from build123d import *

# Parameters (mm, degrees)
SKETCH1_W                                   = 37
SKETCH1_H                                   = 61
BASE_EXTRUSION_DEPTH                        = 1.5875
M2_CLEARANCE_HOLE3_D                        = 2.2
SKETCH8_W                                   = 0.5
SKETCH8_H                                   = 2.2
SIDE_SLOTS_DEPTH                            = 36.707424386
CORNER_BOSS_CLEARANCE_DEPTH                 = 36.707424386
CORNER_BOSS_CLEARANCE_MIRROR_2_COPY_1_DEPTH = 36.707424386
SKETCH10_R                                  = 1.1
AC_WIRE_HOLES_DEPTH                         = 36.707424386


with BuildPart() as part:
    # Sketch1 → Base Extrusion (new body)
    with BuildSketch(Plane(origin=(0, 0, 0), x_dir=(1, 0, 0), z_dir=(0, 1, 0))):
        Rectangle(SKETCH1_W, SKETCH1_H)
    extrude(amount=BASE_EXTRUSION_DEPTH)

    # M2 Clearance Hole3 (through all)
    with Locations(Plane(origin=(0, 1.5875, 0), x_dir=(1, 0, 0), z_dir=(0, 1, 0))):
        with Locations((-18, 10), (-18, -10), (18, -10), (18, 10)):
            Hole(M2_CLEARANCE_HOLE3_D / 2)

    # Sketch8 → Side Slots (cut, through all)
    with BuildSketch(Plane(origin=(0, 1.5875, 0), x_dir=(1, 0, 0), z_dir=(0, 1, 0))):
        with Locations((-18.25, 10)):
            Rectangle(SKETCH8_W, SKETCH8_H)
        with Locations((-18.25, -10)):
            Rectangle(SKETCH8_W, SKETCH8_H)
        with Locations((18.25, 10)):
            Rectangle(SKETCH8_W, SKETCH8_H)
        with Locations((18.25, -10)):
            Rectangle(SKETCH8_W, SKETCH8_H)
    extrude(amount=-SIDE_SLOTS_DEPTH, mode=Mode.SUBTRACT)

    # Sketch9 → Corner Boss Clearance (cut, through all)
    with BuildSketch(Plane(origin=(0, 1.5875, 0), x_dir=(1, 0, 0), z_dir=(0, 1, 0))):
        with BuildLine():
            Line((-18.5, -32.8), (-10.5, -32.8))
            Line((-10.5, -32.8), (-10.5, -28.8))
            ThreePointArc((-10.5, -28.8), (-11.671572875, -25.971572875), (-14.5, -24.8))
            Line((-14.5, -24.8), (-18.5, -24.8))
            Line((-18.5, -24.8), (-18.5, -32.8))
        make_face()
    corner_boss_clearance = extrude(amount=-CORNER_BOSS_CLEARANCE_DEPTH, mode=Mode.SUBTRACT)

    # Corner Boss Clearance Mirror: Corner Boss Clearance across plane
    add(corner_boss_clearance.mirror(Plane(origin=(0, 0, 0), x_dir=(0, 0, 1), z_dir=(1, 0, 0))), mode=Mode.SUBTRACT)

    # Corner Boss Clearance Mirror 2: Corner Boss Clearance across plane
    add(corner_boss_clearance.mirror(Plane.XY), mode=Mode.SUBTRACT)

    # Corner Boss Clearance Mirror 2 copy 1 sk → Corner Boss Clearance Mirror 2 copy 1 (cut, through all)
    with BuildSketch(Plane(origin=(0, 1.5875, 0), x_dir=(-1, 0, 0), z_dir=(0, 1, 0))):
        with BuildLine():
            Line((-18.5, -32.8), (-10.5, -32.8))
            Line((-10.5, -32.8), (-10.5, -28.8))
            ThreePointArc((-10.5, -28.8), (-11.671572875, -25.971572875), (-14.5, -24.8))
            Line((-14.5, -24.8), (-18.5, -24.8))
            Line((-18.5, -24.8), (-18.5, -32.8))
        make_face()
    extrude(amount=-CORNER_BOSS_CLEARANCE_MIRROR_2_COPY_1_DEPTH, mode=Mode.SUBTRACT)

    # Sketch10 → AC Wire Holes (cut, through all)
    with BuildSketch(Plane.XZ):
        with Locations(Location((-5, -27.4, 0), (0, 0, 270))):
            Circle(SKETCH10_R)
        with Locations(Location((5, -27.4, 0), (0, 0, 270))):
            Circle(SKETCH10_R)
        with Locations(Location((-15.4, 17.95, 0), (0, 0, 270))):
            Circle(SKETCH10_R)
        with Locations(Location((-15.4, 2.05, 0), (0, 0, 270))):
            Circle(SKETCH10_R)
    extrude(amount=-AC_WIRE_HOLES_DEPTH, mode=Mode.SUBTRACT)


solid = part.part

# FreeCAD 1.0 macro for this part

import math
import FreeCAD as App
import Part
import Sketcher
Q = App.Units.Quantity

doc = App.newDocument("Part")
body = doc.addObject("PartDesign::Body", "Body")

# Sketch on XZ plane
sketch1 = body.newObject("Sketcher::SketchObject", "Sketch")
sketch1.AttachmentSupport = (doc.getObject("XZ_Plane"), [""])
sketch1.MapMode = "FlatFace"
sketch1.addGeometry(Part.LineSegment(App.Vector(-18, -30, 0), App.Vector(-18, 30, 0)), False)
sketch1.addGeometry(Part.LineSegment(App.Vector(-18, 30, 0), App.Vector(18, 30, 0)), False)
sketch1.addGeometry(Part.LineSegment(App.Vector(18, 30, 0), App.Vector(18, -30, 0)), False)
sketch1.addGeometry(Part.LineSegment(App.Vector(18, -30, 0), App.Vector(-18, -30, 0)), False)
sketch1.addConstraint(Sketcher.Constraint("Coincident", 0, 2, 1, 1))
sketch1.addConstraint(Sketcher.Constraint("Coincident", 1, 2, 2, 1))
sketch1.addConstraint(Sketcher.Constraint("Coincident", 2, 2, 3, 1))
sketch1.addConstraint(Sketcher.Constraint("Coincident", 3, 2, 0, 1))
sketch1.addConstraint(Sketcher.Constraint("Vertical", 0))
sketch1.addConstraint(Sketcher.Constraint("Horizontal", 1))
sketch1.addConstraint(Sketcher.Constraint("Vertical", 2))
sketch1.addConstraint(Sketcher.Constraint("Horizontal", 3))
sketch1.addConstraint(Sketcher.Constraint("Symmetric", 0, 2, 2, 2, -1, 1))
sketch1.addConstraint(Sketcher.Constraint("DistanceX", 1, 1, 1, 2, Q("37 mm")))
sketch1.addConstraint(Sketcher.Constraint("DistanceY", 0, 1, 0, 2, Q("61 mm")))
pad1 = body.newObject("PartDesign::Pad", "Pad")
pad1.Profile = sketch1
pad1.Length = 1.5875
pad1.Reversed = True

# Sketch on XZ plane
sketch2 = body.newObject("Sketcher::SketchObject", "Sketch001")
sketch2.AttachmentSupport = (doc.getObject("XZ_Plane"), [""])
sketch2.MapMode = "FlatFace"
sketch2.AttachmentOffset = App.Placement(App.Vector(0, 0, -1.5875), App.Rotation())
sketch2.addGeometry(Part.Circle(App.Vector(-18, -10, 0), App.Vector(0, 0, 1), 1.1), False)
sketch2.addGeometry(Part.Circle(App.Vector(-18, 10, 0), App.Vector(0, 0, 1), 1.1), False)
sketch2.addGeometry(Part.Circle(App.Vector(18, 10, 0), App.Vector(0, 0, 1), 1.1), False)
sketch2.addGeometry(Part.Circle(App.Vector(18, -10, 0), App.Vector(0, 0, 1), 1.1), False)
sketch2.addConstraint(Sketcher.Constraint("Equal", 0, 1))
sketch2.addConstraint(Sketcher.Constraint("Equal", 1, 2))
sketch2.addConstraint(Sketcher.Constraint("Equal", 2, 3))
sketch2.addConstraint(Sketcher.Constraint("Symmetric", 0, 3, 2, 3, -1, 1))
sketch2.addConstraint(Sketcher.Constraint("Symmetric", 1, 3, 3, 3, -1, 1))
sketch2.addConstraint(Sketcher.Constraint("Symmetric", 1, 3, 2, 3, -2))
sketch2.addConstraint(Sketcher.Constraint("Diameter", 0, Q("2.2 mm")))
sketch2.addConstraint(Sketcher.Constraint("DistanceX", 0, 3, -1, 1, Q("18 mm")))
sketch2.addConstraint(Sketcher.Constraint("DistanceY", 0, 3, -1, 1, Q("10 mm")))
doc.recompute()
hole = body.newObject("PartDesign::Hole", "Hole")
hole.Profile = sketch2
hole.ThreadType = "None"
hole.Diameter = 2.2
hole.DepthType = "ThroughAll"
hole.Reversed = True

# Sketch on XZ plane
sketch3 = body.newObject("Sketcher::SketchObject", "Sketch002")
sketch3.AttachmentSupport = (doc.getObject("XZ_Plane"), [""])
sketch3.MapMode = "FlatFace"
sketch3.AttachmentOffset = App.Placement(App.Vector(0, 0, -1.5875), App.Rotation())
sketch3.addGeometry(Part.LineSegment(App.Vector(-18.5, -11.1, 0), App.Vector(-18.5, -8.9, 0)), False)
sketch3.addGeometry(Part.LineSegment(App.Vector(-18.5, -8.9, 0), App.Vector(-18, -8.9, 0)), False)
sketch3.addGeometry(Part.LineSegment(App.Vector(-18, -8.9, 0), App.Vector(-18, -11.1, 0)), False)
sketch3.addGeometry(Part.LineSegment(App.Vector(-18, -11.1, 0), App.Vector(-18.5, -11.1, 0)), False)
sketch3.addGeometry(Part.LineSegment(App.Vector(-18.5, 8.9, 0), App.Vector(-18.5, 11.1, 0)), False)
sketch3.addGeometry(Part.LineSegment(App.Vector(-18.5, 11.1, 0), App.Vector(-18, 11.1, 0)), False)
sketch3.addGeometry(Part.LineSegment(App.Vector(-18, 11.1, 0), App.Vector(-18, 8.9, 0)), False)
sketch3.addGeometry(Part.LineSegment(App.Vector(-18, 8.9, 0), App.Vector(-18.5, 8.9, 0)), False)
sketch3.addGeometry(Part.LineSegment(App.Vector(18, -11.1, 0), App.Vector(18, -8.9, 0)), False)
sketch3.addGeometry(Part.LineSegment(App.Vector(18, -8.9, 0), App.Vector(18.5, -8.9, 0)), False)
sketch3.addGeometry(Part.LineSegment(App.Vector(18.5, -8.9, 0), App.Vector(18.5, -11.1, 0)), False)
sketch3.addGeometry(Part.LineSegment(App.Vector(18.5, -11.1, 0), App.Vector(18, -11.1, 0)), False)
sketch3.addGeometry(Part.LineSegment(App.Vector(18, 8.9, 0), App.Vector(18, 11.1, 0)), False)
sketch3.addGeometry(Part.LineSegment(App.Vector(18, 11.1, 0), App.Vector(18.5, 11.1, 0)), False)
sketch3.addGeometry(Part.LineSegment(App.Vector(18.5, 11.1, 0), App.Vector(18.5, 8.9, 0)), False)
sketch3.addGeometry(Part.LineSegment(App.Vector(18.5, 8.9, 0), App.Vector(18, 8.9, 0)), False)
sketch3.addConstraint(Sketcher.Constraint("Coincident", 0, 2, 1, 1))
sketch3.addConstraint(Sketcher.Constraint("Coincident", 1, 2, 2, 1))
sketch3.addConstraint(Sketcher.Constraint("Coincident", 2, 2, 3, 1))
sketch3.addConstraint(Sketcher.Constraint("Coincident", 3, 2, 0, 1))
sketch3.addConstraint(Sketcher.Constraint("Coincident", 4, 2, 5, 1))
sketch3.addConstraint(Sketcher.Constraint("Coincident", 5, 2, 6, 1))
sketch3.addConstraint(Sketcher.Constraint("Coincident", 6, 2, 7, 1))
sketch3.addConstraint(Sketcher.Constraint("Coincident", 7, 2, 4, 1))
sketch3.addConstraint(Sketcher.Constraint("Coincident", 8, 2, 9, 1))
sketch3.addConstraint(Sketcher.Constraint("Coincident", 9, 2, 10, 1))
sketch3.addConstraint(Sketcher.Constraint("Coincident", 10, 2, 11, 1))
sketch3.addConstraint(Sketcher.Constraint("Coincident", 11, 2, 8, 1))
sketch3.addConstraint(Sketcher.Constraint("Coincident", 12, 2, 13, 1))
sketch3.addConstraint(Sketcher.Constraint("Coincident", 13, 2, 14, 1))
sketch3.addConstraint(Sketcher.Constraint("Coincident", 14, 2, 15, 1))
sketch3.addConstraint(Sketcher.Constraint("Coincident", 15, 2, 12, 1))
sketch3.addConstraint(Sketcher.Constraint("Vertical", 0))
sketch3.addConstraint(Sketcher.Constraint("Horizontal", 1))
sketch3.addConstraint(Sketcher.Constraint("Vertical", 2))
sketch3.addConstraint(Sketcher.Constraint("Horizontal", 3))
sketch3.addConstraint(Sketcher.Constraint("Vertical", 4))
sketch3.addConstraint(Sketcher.Constraint("Horizontal", 5))
sketch3.addConstraint(Sketcher.Constraint("Vertical", 6))
sketch3.addConstraint(Sketcher.Constraint("Horizontal", 7))
sketch3.addConstraint(Sketcher.Constraint("Vertical", 8))
sketch3.addConstraint(Sketcher.Constraint("Horizontal", 9))
sketch3.addConstraint(Sketcher.Constraint("Vertical", 10))
sketch3.addConstraint(Sketcher.Constraint("Horizontal", 11))
sketch3.addConstraint(Sketcher.Constraint("Vertical", 12))
sketch3.addConstraint(Sketcher.Constraint("Horizontal", 13))
sketch3.addConstraint(Sketcher.Constraint("Vertical", 14))
sketch3.addConstraint(Sketcher.Constraint("Horizontal", 15))
sketch3.addConstraint(Sketcher.Constraint("Symmetric", 6, 2, 8, 2, -1, 1))
sketch3.addConstraint(Sketcher.Constraint("Symmetric", 4, 2, 10, 2, -1, 1))
sketch3.addConstraint(Sketcher.Constraint("Symmetric", 2, 2, 12, 2, -1, 1))
sketch3.addConstraint(Sketcher.Constraint("Symmetric", 0, 2, 14, 2, -1, 1))
sketch3.addConstraint(Sketcher.Constraint("Symmetric", 1, 2, 8, 2, -2))
sketch3.addConstraint(Sketcher.Constraint("Symmetric", 3, 2, 10, 2, -2))
sketch3.addConstraint(Sketcher.Constraint("DistanceX", 1, 1, 1, 2, Q("0.5 mm")))
sketch3.addConstraint(Sketcher.Constraint("DistanceY", 0, 1, 0, 2, Q("2.2 mm")))
sketch3.addConstraint(Sketcher.Constraint("DistanceX", 1, 2, -1, 1, Q("18 mm")))
sketch3.addConstraint(Sketcher.Constraint("DistanceY", 0, 2, 4, 2, Q("20 mm")))
pocket1 = body.newObject("PartDesign::Pocket", "Pocket")
pocket1.Profile = sketch3
pocket1.Type = "ThroughAll"
pocket1.Reversed = True

# Sketch on XZ plane
sketch4 = body.newObject("Sketcher::SketchObject", "Sketch003")
sketch4.AttachmentSupport = (doc.getObject("XZ_Plane"), [""])
sketch4.MapMode = "FlatFace"
sketch4.AttachmentOffset = App.Placement(App.Vector(0, 0, -1.5875), App.Rotation())
sketch4.addGeometry(Part.LineSegment(App.Vector(-18.5, 32.8, 0), App.Vector(-10.5, 32.8, 0)), False)
sketch4.addGeometry(Part.LineSegment(App.Vector(-10.5, 32.8, 0), App.Vector(-10.5, 28.8, 0)), False)
sketch4.addGeometry(Part.ArcOfCircle(Part.Circle(App.Vector(-14.5, 28.8, 0), App.Vector(0, 0, 1), 4), math.radians(-90), math.radians(0)), False)
sketch4.addGeometry(Part.LineSegment(App.Vector(-14.5, 24.8, 0), App.Vector(-18.5, 24.8, 0)), False)
sketch4.addGeometry(Part.LineSegment(App.Vector(-18.5, 24.8, 0), App.Vector(-18.5, 32.8, 0)), False)
sketch4.addConstraint(Sketcher.Constraint("Coincident", 0, 2, 1, 1))
sketch4.addConstraint(Sketcher.Constraint("Tangent", 1, 2, 2, 2))
sketch4.addConstraint(Sketcher.Constraint("Tangent", 2, 1, 3, 1))
sketch4.addConstraint(Sketcher.Constraint("Coincident", 3, 2, 4, 1))
sketch4.addConstraint(Sketcher.Constraint("Coincident", 4, 2, 0, 1))
sketch4.addConstraint(Sketcher.Constraint("Horizontal", 0))
sketch4.addConstraint(Sketcher.Constraint("Vertical", 1))
sketch4.addConstraint(Sketcher.Constraint("Horizontal", 3))
sketch4.addConstraint(Sketcher.Constraint("Vertical", 4))
sketch4.addConstraint(Sketcher.Constraint("Equal", 3, 1))
sketch4.addConstraint(Sketcher.Constraint("Radius", 2, Q("4 mm")))
sketch4.addConstraint(Sketcher.Constraint("DistanceX", 0, 1, 0, 2, Q("8 mm")))
sketch4.addConstraint(Sketcher.Constraint("DistanceX", 2, 3, -1, 1, Q("14.5 mm")))
sketch4.addConstraint(Sketcher.Constraint("DistanceY", -1, 1, 2, 3, Q("28.8 mm")))
pocket2 = body.newObject("PartDesign::Pocket", "Pocket001")
pocket2.Profile = sketch4
pocket2.Type = "ThroughAll"
pocket2.Reversed = True
doc.recompute()

mirrored = body.newObject("PartDesign::Mirrored", "Mirrored")
mirrored.Originals = [pocket2]
mirrored.MirrorPlane = (doc.getObject("YZ_Plane"), [""])
body.Tip = mirrored
doc.recompute()

mirrored2 = body.newObject("PartDesign::Mirrored", "Mirrored001")
mirrored2.Originals = [pocket2]
mirrored2.MirrorPlane = (doc.getObject("XY_Plane"), [""])
body.Tip = mirrored2

# Sketch on XZ plane
sketch5 = body.newObject("Sketcher::SketchObject", "Sketch004")
sketch5.AttachmentSupport = (doc.getObject("XZ_Plane"), [""])
sketch5.MapMode = "FlatFace"
sketch5.AttachmentOffset = App.Placement(App.Vector(0, 0, -1.5875), App.Rotation())
sketch5.addGeometry(Part.LineSegment(App.Vector(18.5, -32.8, 0), App.Vector(10.5, -32.8, 0)), False)
sketch5.addGeometry(Part.LineSegment(App.Vector(10.5, -32.8, 0), App.Vector(10.5, -28.8, 0)), False)
sketch5.addGeometry(Part.ArcOfCircle(Part.Circle(App.Vector(14.5, -28.8, 0), App.Vector(0, 0, 1), 4), math.radians(90), math.radians(180)), False)
sketch5.addGeometry(Part.LineSegment(App.Vector(14.5, -24.8, 0), App.Vector(18.5, -24.8, 0)), False)
sketch5.addGeometry(Part.LineSegment(App.Vector(18.5, -24.8, 0), App.Vector(18.5, -32.8, 0)), False)
sketch5.addConstraint(Sketcher.Constraint("Coincident", 0, 2, 1, 1))
sketch5.addConstraint(Sketcher.Constraint("Tangent", 1, 2, 2, 2))
sketch5.addConstraint(Sketcher.Constraint("Tangent", 2, 1, 3, 1))
sketch5.addConstraint(Sketcher.Constraint("Coincident", 3, 2, 4, 1))
sketch5.addConstraint(Sketcher.Constraint("Coincident", 4, 2, 0, 1))
sketch5.addConstraint(Sketcher.Constraint("Horizontal", 0))
sketch5.addConstraint(Sketcher.Constraint("Vertical", 1))
sketch5.addConstraint(Sketcher.Constraint("Horizontal", 3))
sketch5.addConstraint(Sketcher.Constraint("Vertical", 4))
sketch5.addConstraint(Sketcher.Constraint("Equal", 3, 1))
sketch5.addConstraint(Sketcher.Constraint("Radius", 2, Q("4 mm")))
sketch5.addConstraint(Sketcher.Constraint("DistanceX", 0, 2, 0, 1, Q("8 mm")))
sketch5.addConstraint(Sketcher.Constraint("DistanceX", -1, 1, 2, 3, Q("14.5 mm")))
sketch5.addConstraint(Sketcher.Constraint("DistanceY", 2, 3, -1, 1, Q("28.8 mm")))
pocket3 = body.newObject("PartDesign::Pocket", "Pocket002")
pocket3.Profile = sketch5
pocket3.Type = "ThroughAll"
pocket3.Reversed = True

# Sketch on XZ plane
sketch6 = body.newObject("Sketcher::SketchObject", "Sketch005")
sketch6.AttachmentSupport = (doc.getObject("XZ_Plane"), [""])
sketch6.MapMode = "FlatFace"
sketch6.addGeometry(Part.Circle(App.Vector(-5, -27.4, 0), App.Vector(0, 0, 1), 1.1), False)
sketch6.addGeometry(Part.Circle(App.Vector(5, -27.4, 0), App.Vector(0, 0, 1), 1.1), False)
sketch6.addGeometry(Part.Circle(App.Vector(-15.4, 17.9, 0), App.Vector(0, 0, 1), 1.1), False)
sketch6.addGeometry(Part.Circle(App.Vector(-15.4, 2, 0), App.Vector(0, 0, 1), 1.1), False)
sketch6.addConstraint(Sketcher.Constraint("Equal", 0, 1))
sketch6.addConstraint(Sketcher.Constraint("Equal", 1, 2))
sketch6.addConstraint(Sketcher.Constraint("Equal", 2, 3))
sketch6.addConstraint(Sketcher.Constraint("Symmetric", 0, 3, 1, 3, -2))
sketch6.addConstraint(Sketcher.Constraint("Vertical", 2, 3, 3, 3))
sketch6.addConstraint(Sketcher.Constraint("Diameter", 0, Q("2.2 mm")))
sketch6.addConstraint(Sketcher.Constraint("DistanceX", 0, 3, -1, 1, Q("5 mm")))
sketch6.addConstraint(Sketcher.Constraint("DistanceY", 0, 3, -1, 1, Q("27.4 mm")))
sketch6.addConstraint(Sketcher.Constraint("DistanceX", 2, 3, -1, 1, Q("15.4 mm")))
sketch6.addConstraint(Sketcher.Constraint("DistanceY", 3, 3, 2, 3, Q("15.9 mm")))
sketch6.addConstraint(Sketcher.Constraint("DistanceY", -1, 1, 2, 3, Q("17.95 mm")))
pocket4 = body.newObject("PartDesign::Pocket", "Pocket003")
pocket4.Profile = sketch6
pocket4.Type = "ThroughAll"

doc.recompute()
